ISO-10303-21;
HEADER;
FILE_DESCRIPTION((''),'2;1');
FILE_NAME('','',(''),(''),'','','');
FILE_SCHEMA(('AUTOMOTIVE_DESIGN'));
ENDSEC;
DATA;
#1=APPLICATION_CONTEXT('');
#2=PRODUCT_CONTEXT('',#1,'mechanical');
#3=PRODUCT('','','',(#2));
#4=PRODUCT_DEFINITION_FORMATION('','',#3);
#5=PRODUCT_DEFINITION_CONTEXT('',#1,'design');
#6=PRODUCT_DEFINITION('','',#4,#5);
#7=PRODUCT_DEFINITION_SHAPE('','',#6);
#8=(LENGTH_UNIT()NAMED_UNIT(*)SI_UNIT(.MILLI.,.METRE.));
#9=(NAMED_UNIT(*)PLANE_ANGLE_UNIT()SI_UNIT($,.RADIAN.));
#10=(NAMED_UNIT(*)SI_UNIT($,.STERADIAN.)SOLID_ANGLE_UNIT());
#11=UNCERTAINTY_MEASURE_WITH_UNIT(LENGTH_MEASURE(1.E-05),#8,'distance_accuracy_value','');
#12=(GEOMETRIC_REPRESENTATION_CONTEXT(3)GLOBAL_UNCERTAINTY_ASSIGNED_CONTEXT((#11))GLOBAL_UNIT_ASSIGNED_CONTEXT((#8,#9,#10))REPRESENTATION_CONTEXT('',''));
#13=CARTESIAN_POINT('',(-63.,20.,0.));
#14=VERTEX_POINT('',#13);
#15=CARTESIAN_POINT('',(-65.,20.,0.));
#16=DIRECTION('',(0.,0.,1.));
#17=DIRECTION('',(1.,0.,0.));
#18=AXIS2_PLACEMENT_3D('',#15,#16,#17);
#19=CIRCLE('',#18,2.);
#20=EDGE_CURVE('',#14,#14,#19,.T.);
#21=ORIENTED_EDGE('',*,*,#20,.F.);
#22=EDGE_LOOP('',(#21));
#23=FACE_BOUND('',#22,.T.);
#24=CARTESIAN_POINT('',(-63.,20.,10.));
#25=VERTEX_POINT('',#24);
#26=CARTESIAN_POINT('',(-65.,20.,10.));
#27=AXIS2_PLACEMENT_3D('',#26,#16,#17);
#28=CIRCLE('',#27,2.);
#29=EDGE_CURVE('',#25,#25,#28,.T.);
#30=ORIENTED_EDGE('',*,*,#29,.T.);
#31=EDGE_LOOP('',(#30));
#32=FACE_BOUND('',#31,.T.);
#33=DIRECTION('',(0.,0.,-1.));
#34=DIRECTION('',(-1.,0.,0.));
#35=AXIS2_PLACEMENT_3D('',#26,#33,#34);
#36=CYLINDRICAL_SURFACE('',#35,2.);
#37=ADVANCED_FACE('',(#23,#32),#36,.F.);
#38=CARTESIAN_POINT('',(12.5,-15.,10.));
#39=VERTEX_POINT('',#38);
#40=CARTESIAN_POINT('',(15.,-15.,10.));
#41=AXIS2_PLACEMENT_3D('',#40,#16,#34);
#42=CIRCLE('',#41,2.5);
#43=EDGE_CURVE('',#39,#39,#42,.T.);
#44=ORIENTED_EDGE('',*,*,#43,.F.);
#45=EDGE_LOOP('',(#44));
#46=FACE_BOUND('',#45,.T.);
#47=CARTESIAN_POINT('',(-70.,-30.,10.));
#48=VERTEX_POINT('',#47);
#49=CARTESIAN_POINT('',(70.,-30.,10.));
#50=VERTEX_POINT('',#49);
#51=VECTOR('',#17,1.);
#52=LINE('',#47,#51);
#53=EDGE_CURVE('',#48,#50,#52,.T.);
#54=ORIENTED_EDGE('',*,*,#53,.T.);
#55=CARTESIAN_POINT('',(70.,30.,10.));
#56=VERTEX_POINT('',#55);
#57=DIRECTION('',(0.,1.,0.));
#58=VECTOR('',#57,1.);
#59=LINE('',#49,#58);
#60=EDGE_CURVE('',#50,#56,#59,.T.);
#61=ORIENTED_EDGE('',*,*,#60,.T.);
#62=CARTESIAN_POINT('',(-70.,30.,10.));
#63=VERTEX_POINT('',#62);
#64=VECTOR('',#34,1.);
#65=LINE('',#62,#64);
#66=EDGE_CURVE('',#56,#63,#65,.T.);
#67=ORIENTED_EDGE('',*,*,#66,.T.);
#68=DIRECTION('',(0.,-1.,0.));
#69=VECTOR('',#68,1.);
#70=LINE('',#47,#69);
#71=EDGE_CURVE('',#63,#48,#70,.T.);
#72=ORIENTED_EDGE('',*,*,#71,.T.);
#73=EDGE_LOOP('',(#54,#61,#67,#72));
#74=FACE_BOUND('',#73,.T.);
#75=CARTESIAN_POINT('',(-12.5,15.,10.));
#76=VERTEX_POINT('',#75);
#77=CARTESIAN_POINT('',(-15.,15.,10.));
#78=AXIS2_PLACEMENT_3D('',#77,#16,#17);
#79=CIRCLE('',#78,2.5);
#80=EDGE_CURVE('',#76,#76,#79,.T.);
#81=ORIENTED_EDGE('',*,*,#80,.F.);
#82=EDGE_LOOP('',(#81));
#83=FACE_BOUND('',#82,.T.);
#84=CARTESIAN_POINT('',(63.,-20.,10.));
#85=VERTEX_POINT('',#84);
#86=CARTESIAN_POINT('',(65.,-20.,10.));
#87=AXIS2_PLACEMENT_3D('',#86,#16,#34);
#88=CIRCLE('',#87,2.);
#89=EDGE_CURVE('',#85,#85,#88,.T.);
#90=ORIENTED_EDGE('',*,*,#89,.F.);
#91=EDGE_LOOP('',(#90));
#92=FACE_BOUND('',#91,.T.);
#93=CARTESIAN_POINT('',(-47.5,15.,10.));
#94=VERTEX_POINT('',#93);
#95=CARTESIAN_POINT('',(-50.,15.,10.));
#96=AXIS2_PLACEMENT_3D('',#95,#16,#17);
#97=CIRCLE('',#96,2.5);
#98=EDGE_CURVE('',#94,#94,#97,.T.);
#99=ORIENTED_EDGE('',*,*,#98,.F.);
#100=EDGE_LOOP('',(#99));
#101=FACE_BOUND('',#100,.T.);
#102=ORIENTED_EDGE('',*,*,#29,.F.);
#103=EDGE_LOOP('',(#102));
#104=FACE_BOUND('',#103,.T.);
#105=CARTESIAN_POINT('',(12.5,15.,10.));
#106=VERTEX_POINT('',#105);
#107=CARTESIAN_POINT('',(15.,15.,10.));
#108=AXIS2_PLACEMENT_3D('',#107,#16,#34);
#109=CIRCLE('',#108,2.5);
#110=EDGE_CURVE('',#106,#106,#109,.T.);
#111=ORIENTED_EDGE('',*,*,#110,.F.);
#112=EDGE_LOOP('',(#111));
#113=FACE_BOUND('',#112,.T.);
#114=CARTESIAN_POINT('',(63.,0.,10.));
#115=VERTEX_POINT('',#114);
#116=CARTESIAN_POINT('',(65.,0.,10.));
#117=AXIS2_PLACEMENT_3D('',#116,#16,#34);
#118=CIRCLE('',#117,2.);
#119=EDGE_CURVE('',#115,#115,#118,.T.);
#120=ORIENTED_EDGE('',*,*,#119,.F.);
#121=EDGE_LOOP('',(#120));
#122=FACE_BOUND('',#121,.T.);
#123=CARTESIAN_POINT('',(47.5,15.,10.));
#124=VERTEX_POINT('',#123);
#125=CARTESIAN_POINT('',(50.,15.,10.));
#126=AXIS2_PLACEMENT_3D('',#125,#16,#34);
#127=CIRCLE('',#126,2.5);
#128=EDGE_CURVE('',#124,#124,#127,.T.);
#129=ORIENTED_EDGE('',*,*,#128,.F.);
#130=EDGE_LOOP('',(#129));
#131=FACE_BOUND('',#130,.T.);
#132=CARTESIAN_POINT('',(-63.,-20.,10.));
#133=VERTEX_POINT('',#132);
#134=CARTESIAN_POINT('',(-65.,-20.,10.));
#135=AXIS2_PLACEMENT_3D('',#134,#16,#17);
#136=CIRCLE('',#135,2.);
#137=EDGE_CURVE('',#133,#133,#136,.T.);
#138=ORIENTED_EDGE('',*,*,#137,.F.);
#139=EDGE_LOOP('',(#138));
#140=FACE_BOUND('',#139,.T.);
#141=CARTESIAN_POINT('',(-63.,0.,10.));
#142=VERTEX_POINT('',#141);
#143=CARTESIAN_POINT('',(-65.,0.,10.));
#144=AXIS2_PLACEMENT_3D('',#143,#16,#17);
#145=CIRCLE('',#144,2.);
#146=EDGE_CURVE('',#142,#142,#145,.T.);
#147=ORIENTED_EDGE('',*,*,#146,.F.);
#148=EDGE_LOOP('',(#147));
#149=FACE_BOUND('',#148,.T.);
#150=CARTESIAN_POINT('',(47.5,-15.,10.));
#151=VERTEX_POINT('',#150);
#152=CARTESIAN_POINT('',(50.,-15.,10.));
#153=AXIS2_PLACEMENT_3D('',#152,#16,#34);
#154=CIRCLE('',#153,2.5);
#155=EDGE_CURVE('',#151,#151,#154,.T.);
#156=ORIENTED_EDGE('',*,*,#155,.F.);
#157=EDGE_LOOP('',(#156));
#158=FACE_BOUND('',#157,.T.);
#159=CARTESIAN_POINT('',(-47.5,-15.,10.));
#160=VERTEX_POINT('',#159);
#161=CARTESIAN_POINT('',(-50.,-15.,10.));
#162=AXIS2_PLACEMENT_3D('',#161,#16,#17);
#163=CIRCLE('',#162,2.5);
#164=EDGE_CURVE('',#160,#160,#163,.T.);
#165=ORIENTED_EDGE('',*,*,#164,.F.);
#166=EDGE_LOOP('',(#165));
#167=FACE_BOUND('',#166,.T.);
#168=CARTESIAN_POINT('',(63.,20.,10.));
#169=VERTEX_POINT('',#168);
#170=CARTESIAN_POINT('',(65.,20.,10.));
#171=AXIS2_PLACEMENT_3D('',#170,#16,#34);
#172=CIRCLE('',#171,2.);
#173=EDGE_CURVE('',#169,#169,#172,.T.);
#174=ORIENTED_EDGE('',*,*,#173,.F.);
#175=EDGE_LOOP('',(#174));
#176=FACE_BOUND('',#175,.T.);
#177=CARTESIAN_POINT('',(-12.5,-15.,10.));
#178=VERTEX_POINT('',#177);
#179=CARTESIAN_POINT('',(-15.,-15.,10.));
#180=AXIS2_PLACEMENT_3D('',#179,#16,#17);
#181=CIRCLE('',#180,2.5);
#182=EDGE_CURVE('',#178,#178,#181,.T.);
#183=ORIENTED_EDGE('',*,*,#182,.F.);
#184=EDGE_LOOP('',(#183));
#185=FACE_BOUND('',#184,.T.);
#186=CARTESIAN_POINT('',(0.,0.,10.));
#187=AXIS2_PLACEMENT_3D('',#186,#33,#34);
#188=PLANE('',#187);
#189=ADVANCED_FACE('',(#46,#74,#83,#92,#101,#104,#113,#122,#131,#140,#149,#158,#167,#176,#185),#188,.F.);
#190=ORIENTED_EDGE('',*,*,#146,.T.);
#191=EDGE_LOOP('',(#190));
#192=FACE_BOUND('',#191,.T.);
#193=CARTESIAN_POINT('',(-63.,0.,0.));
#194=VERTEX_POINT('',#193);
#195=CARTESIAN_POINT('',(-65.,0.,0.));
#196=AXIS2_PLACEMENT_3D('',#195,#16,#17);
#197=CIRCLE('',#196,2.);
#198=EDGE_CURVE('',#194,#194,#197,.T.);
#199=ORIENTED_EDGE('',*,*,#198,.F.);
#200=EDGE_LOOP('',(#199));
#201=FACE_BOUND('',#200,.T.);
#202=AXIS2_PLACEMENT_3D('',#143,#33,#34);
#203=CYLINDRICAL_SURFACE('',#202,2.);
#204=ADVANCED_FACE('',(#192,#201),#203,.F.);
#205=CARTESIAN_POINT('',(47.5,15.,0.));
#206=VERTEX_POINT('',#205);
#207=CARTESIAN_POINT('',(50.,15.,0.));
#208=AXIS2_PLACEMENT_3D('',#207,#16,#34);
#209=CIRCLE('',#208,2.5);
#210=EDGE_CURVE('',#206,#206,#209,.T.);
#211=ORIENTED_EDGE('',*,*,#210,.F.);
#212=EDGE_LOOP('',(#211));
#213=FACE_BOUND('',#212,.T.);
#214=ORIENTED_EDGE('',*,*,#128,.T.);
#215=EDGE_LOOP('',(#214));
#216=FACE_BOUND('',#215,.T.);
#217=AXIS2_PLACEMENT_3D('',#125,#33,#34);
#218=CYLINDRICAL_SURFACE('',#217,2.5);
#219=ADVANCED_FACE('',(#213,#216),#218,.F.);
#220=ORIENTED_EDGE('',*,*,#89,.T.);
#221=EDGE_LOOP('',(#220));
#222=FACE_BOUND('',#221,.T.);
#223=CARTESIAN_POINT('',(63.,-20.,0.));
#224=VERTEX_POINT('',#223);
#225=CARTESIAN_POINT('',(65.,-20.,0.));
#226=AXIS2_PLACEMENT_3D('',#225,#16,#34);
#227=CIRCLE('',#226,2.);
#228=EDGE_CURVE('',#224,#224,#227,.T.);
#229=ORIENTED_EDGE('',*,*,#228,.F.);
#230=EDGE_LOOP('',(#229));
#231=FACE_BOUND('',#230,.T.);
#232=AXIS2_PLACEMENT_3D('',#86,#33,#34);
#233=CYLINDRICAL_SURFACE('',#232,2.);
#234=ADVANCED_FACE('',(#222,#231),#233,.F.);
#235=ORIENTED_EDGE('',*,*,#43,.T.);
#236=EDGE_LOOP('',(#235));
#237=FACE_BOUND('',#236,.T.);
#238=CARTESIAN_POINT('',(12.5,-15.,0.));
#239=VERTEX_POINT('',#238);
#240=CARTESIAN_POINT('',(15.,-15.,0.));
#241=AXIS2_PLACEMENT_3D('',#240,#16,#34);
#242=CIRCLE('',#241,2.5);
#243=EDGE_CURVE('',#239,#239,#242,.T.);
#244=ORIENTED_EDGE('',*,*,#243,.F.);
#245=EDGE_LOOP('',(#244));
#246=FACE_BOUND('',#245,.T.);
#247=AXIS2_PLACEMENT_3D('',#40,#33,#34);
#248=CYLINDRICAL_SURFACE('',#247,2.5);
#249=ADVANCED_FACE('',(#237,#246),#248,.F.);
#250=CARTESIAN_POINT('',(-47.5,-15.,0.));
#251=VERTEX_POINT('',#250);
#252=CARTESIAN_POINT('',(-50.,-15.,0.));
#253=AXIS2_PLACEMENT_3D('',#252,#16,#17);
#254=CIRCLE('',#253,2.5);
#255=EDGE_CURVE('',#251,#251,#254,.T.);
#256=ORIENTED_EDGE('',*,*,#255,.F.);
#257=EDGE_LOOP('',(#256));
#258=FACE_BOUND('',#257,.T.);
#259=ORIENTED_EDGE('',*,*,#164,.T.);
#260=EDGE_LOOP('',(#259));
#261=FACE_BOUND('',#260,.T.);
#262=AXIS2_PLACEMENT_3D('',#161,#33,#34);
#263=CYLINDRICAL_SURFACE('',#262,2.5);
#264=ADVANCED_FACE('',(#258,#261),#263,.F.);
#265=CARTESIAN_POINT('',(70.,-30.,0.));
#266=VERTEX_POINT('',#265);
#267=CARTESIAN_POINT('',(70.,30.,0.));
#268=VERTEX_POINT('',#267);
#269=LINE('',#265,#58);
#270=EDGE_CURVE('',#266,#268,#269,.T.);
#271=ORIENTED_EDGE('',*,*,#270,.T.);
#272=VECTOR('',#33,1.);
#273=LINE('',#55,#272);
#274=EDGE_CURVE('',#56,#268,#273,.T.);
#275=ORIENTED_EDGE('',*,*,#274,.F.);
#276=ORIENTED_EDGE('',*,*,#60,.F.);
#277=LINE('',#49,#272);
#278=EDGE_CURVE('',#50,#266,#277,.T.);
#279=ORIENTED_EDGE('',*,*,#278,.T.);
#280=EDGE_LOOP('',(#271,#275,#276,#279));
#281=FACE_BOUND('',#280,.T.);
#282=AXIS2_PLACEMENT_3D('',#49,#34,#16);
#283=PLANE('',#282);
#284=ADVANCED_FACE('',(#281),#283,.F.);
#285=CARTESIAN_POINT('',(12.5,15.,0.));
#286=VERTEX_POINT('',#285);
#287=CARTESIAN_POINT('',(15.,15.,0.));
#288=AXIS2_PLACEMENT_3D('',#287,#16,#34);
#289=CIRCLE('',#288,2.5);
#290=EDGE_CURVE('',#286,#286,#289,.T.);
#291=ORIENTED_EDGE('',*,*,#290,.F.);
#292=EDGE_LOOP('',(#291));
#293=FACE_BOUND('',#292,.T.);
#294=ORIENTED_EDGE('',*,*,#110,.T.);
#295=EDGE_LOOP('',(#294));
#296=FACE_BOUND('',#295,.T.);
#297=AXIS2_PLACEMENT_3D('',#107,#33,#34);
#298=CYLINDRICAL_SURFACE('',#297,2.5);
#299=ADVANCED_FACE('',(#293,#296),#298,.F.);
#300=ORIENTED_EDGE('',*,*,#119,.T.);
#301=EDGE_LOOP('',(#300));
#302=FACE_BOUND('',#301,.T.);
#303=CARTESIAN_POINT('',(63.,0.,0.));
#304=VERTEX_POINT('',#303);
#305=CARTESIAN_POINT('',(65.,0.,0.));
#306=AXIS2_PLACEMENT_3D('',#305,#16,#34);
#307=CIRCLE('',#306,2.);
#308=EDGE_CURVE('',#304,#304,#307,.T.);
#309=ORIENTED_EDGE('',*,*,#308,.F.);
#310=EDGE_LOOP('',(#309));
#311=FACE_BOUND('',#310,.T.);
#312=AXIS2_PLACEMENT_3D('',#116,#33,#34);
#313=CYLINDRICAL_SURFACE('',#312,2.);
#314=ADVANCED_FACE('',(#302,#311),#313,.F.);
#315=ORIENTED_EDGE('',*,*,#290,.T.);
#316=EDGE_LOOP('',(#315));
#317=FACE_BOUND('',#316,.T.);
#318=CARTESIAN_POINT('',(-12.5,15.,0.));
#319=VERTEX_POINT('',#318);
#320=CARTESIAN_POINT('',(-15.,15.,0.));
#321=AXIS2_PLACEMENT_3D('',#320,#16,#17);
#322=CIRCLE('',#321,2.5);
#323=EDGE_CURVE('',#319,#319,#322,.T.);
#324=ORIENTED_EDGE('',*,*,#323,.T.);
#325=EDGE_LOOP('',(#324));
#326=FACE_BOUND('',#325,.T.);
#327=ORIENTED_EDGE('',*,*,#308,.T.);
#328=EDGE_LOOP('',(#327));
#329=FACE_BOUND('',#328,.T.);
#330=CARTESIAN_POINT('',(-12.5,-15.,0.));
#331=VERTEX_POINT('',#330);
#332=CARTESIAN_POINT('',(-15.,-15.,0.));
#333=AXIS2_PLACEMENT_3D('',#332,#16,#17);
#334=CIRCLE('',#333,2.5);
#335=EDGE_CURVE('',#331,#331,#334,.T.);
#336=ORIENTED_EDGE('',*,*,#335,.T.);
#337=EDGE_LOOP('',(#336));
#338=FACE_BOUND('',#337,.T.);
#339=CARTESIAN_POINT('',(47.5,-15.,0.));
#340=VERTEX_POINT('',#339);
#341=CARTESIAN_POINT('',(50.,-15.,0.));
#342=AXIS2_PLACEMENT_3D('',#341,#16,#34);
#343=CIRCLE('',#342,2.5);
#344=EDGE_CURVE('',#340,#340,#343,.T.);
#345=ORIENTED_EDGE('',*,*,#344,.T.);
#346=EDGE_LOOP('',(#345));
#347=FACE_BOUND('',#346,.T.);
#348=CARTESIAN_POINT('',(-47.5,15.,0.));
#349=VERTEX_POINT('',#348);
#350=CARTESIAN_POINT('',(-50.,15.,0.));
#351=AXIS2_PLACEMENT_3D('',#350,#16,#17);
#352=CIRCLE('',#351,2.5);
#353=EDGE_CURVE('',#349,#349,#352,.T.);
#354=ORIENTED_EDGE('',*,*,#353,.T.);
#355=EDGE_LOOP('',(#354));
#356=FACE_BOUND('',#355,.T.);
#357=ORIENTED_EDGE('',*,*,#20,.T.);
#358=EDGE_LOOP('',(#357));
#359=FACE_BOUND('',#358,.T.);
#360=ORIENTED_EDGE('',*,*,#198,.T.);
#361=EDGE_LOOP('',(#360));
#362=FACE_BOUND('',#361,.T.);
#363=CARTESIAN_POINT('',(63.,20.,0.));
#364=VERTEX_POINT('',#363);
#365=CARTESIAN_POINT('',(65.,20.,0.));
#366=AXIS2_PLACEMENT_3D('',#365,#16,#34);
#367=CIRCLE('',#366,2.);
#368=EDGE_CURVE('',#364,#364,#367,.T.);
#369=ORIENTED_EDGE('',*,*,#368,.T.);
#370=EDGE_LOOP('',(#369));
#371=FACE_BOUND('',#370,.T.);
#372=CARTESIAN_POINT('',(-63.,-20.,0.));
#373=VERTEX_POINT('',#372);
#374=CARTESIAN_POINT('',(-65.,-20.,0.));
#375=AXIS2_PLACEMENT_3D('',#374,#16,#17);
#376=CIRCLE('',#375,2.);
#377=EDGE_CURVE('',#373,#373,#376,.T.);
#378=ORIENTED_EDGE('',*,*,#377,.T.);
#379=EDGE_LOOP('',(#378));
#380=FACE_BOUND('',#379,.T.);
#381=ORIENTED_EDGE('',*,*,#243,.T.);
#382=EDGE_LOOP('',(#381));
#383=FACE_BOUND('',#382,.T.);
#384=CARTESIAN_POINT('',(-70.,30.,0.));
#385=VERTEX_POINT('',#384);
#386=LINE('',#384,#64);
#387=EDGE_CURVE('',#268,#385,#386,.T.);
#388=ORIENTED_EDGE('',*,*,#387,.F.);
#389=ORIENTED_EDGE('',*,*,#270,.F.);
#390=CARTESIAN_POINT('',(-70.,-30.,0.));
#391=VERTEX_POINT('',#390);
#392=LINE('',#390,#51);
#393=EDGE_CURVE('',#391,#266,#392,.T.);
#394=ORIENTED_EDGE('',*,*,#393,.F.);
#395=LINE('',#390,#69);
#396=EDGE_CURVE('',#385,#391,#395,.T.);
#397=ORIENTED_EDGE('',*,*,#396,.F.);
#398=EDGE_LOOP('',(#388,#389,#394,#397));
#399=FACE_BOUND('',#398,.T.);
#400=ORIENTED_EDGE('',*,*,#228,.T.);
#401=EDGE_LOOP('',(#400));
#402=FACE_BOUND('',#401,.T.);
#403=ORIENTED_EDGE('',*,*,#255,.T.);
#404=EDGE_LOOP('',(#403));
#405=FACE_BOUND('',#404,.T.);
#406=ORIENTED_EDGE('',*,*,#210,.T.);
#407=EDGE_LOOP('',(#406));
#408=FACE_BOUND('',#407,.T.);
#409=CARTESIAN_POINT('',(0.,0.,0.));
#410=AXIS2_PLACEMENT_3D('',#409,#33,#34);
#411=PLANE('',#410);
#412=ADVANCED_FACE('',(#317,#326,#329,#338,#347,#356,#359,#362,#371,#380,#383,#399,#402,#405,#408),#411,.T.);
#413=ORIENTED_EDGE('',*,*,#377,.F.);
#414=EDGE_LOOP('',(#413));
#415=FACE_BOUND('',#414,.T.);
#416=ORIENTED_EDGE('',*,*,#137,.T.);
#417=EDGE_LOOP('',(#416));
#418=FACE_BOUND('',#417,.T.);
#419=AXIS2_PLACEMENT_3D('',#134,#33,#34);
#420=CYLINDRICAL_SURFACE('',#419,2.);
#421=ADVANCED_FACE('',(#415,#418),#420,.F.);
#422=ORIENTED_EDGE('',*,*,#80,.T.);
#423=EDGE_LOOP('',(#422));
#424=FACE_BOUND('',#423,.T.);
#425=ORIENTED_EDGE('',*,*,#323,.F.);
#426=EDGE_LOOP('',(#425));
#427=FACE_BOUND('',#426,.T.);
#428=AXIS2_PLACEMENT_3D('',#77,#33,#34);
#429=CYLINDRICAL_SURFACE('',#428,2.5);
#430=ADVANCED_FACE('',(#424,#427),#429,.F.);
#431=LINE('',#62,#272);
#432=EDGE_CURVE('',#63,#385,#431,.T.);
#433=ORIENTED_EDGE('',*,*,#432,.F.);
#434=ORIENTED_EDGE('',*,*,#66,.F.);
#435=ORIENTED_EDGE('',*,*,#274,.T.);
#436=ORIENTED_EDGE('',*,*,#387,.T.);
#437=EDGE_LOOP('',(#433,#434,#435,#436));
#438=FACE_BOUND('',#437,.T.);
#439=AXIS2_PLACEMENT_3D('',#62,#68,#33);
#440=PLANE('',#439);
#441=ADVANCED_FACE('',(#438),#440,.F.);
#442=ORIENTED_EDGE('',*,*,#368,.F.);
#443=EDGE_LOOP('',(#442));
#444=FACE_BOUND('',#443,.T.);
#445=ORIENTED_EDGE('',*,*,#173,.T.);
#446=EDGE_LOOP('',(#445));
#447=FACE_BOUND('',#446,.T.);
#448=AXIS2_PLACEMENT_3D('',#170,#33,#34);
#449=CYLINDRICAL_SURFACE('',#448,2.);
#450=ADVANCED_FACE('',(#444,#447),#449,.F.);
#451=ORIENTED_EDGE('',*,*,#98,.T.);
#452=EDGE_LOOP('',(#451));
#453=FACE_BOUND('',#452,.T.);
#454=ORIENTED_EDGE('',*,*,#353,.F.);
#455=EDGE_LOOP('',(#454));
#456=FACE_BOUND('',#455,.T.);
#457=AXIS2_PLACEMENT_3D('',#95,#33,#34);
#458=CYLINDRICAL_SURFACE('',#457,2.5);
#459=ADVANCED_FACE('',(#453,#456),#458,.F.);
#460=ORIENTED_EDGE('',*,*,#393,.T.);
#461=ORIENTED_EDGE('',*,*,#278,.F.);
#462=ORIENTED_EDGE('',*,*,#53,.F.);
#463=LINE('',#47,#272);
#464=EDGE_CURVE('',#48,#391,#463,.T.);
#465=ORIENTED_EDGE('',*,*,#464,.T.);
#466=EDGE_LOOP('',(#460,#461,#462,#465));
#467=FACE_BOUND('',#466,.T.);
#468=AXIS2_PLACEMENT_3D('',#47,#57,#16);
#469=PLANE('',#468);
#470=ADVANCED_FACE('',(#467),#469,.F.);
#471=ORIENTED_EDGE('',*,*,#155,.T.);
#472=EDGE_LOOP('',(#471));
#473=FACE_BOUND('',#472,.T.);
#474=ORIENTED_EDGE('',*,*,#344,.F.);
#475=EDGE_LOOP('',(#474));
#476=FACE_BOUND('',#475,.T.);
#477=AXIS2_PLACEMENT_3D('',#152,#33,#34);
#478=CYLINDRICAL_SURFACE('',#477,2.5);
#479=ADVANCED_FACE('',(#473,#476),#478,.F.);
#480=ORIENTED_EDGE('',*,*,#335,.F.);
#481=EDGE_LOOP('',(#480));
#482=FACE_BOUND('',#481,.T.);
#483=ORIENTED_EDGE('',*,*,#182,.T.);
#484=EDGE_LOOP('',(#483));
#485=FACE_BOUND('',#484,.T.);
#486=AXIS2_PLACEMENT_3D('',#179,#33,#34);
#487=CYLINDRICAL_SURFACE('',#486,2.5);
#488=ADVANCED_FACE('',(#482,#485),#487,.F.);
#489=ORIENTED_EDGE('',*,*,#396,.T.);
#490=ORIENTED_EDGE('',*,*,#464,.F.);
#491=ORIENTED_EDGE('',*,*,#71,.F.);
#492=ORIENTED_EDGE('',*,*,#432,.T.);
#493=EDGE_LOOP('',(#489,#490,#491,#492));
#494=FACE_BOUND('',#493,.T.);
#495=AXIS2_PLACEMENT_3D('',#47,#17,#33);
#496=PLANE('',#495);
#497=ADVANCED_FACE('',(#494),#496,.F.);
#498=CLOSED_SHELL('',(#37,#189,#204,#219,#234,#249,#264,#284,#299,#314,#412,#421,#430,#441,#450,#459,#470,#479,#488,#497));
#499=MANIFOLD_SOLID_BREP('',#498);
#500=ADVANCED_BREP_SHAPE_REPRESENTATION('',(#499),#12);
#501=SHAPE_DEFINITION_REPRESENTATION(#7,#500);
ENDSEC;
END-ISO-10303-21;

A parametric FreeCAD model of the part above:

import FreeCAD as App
import Part
import Sketcher
from FreeCAD import Vector
Q = App.Units.Quantity


def add_polygon(sketch, points):
    """Adds a closed chain of lines whose ends are joined by coincident constraints."""
    first, n = sketch.GeometryCount, len(points)
    for a, b in zip(points, points[1:] + points[:1]):
        sketch.addGeometry(Part.LineSegment(App.Vector(*a, 0), App.Vector(*b, 0)), False)
    for i in range(n):
        sketch.addConstraint(Sketcher.Constraint("Coincident", first + i, 2, first + (i + 1) % n, 1))

doc = App.newDocument("Part")
body = doc.addObject("PartDesign::Body", "Body")

# Sketch on XY plane
sketch1 = body.newObject("Sketcher::SketchObject", "Sketch")
sketch1.AttachmentSupport = (doc.getObject("XY_Plane"), [""])
sketch1.MapMode = "FlatFace"
add_polygon(sketch1, [(-70, 30), (-70, -30), (70, -30), (70, 30)])  # lines 0-3
sketch1.addGeometry(Part.Circle(Vector(-65, -20, 0), Vector(0, 0, 1), 2), False)  # 4
sketch1.addGeometry(Part.Circle(Vector(-50, -15, 0), Vector(0, 0, 1), 2.5), False)  # 5
sketch1.addGeometry(Part.Circle(Vector(-15, -15, 0), Vector(0, 0, 1), 2.5), False)  # 6
sketch1.addGeometry(Part.Circle(Vector(15, -15, 0), Vector(0, 0, 1), 2.5), False)  # 7
sketch1.addGeometry(Part.Circle(Vector(65, -20, 0), Vector(0, 0, 1), 2), False)  # 8
sketch1.addGeometry(Part.Circle(Vector(50, -15, 0), Vector(0, 0, 1), 2.5), False)  # 9
sketch1.addGeometry(Part.Circle(Vector(-65, 0, 0), Vector(0, 0, 1), 2), False)  # 10
sketch1.addGeometry(Part.Circle(Vector(-50, 15, 0), Vector(0, 0, 1), 2.5), False)  # 11
sketch1.addGeometry(Part.Circle(Vector(-65, 20, 0), Vector(0, 0, 1), 2), False)  # 12
sketch1.addGeometry(Part.Circle(Vector(-15, 15, 0), Vector(0, 0, 1), 2.5), False)  # 13
sketch1.addGeometry(Part.Circle(Vector(65, 0, 0), Vector(0, 0, 1), 2), False)  # 14
sketch1.addGeometry(Part.Circle(Vector(15, 15, 0), Vector(0, 0, 1), 2.5), False)  # 15
sketch1.addGeometry(Part.Circle(Vector(50, 15, 0), Vector(0, 0, 1), 2.5), False)  # 16
sketch1.addGeometry(Part.Circle(Vector(65, 20, 0), Vector(0, 0, 1), 2), False)  # 17
sketch1.addConstraint([
    Sketcher.Constraint("Vertical", 0),
    Sketcher.Constraint("Horizontal", 1),
    Sketcher.Constraint("Vertical", 2),
    Sketcher.Constraint("Horizontal", 3),
    Sketcher.Constraint("Equal", 5, 6),
    Sketcher.Constraint("Equal", 6, 7),
    Sketcher.Constraint("Equal", 4, 8),
    Sketcher.Constraint("Equal", 7, 9),
    Sketcher.Constraint("Equal", 8, 10),
    Sketcher.Constraint("Equal", 9, 11),
    Sketcher.Constraint("Equal", 10, 12),
    Sketcher.Constraint("Equal", 11, 13),
    Sketcher.Constraint("Equal", 12, 14),
    Sketcher.Constraint("Equal", 13, 15),
    Sketcher.Constraint("Equal", 15, 16),
    Sketcher.Constraint("Equal", 14, 17),
    Sketcher.Constraint("Symmetric", 9, 3, 11, 3, -1, 1),
    Sketcher.Constraint("Symmetric", 8, 3, 12, 3, -1, 1),
    Sketcher.Constraint("Symmetric", 7, 3, 13, 3, -1, 1),
    Sketcher.Constraint("Symmetric", 10, 3, 14, 3, -1, 1),
    Sketcher.Constraint("Symmetric", 6, 3, 15, 3, -1, 1),
    Sketcher.Constraint("Symmetric", 5, 3, 16, 3, -1, 1),
    Sketcher.Constraint("Symmetric", 4, 3, 17, 3, -1, 1),
    Sketcher.Constraint("Symmetric", 0, 2, 2, 2, -1, 1),
    Sketcher.Constraint("Symmetric", 6, 3, 7, 3, -2),
    Sketcher.Constraint("Symmetric", 4, 3, 8, 3, -2),
    Sketcher.Constraint("Symmetric", 5, 3, 9, 3, -2),
    Sketcher.Constraint("PointOnObject", 10, 3, -1),
    Sketcher.Constraint("Horizontal", 5, 3, 6, 3),
    Sketcher.Constraint("Vertical", 4, 3, 10, 3),
    Sketcher.Constraint("Diameter", 4, Q("4 mm")),
    Sketcher.Constraint("Diameter", 5, Q("5 mm")),
    Sketcher.Constraint("DistanceX", 1, 1, 1, 2, Q("140 mm")),
    Sketcher.Constraint("DistanceY", 0, 2, 0, 1, Q("60 mm")),
    Sketcher.Constraint("DistanceX", 4, 3, -1, 1, Q("65 mm")),
    Sketcher.Constraint("DistanceY", 4, 3, -1, 1, Q("20 mm")),
    Sketcher.Constraint("DistanceX", 5, 3, -1, 1, Q("50 mm")),
    Sketcher.Constraint("DistanceY", 5, 3, -1, 1, Q("15 mm")),
    Sketcher.Constraint("DistanceX", 6, 3, -1, 1, Q("15 mm")),
])
pad1 = body.newObject("PartDesign::Pad", "Pad")
pad1.Profile = sketch1
pad1.Length = 10

doc.recompute()
